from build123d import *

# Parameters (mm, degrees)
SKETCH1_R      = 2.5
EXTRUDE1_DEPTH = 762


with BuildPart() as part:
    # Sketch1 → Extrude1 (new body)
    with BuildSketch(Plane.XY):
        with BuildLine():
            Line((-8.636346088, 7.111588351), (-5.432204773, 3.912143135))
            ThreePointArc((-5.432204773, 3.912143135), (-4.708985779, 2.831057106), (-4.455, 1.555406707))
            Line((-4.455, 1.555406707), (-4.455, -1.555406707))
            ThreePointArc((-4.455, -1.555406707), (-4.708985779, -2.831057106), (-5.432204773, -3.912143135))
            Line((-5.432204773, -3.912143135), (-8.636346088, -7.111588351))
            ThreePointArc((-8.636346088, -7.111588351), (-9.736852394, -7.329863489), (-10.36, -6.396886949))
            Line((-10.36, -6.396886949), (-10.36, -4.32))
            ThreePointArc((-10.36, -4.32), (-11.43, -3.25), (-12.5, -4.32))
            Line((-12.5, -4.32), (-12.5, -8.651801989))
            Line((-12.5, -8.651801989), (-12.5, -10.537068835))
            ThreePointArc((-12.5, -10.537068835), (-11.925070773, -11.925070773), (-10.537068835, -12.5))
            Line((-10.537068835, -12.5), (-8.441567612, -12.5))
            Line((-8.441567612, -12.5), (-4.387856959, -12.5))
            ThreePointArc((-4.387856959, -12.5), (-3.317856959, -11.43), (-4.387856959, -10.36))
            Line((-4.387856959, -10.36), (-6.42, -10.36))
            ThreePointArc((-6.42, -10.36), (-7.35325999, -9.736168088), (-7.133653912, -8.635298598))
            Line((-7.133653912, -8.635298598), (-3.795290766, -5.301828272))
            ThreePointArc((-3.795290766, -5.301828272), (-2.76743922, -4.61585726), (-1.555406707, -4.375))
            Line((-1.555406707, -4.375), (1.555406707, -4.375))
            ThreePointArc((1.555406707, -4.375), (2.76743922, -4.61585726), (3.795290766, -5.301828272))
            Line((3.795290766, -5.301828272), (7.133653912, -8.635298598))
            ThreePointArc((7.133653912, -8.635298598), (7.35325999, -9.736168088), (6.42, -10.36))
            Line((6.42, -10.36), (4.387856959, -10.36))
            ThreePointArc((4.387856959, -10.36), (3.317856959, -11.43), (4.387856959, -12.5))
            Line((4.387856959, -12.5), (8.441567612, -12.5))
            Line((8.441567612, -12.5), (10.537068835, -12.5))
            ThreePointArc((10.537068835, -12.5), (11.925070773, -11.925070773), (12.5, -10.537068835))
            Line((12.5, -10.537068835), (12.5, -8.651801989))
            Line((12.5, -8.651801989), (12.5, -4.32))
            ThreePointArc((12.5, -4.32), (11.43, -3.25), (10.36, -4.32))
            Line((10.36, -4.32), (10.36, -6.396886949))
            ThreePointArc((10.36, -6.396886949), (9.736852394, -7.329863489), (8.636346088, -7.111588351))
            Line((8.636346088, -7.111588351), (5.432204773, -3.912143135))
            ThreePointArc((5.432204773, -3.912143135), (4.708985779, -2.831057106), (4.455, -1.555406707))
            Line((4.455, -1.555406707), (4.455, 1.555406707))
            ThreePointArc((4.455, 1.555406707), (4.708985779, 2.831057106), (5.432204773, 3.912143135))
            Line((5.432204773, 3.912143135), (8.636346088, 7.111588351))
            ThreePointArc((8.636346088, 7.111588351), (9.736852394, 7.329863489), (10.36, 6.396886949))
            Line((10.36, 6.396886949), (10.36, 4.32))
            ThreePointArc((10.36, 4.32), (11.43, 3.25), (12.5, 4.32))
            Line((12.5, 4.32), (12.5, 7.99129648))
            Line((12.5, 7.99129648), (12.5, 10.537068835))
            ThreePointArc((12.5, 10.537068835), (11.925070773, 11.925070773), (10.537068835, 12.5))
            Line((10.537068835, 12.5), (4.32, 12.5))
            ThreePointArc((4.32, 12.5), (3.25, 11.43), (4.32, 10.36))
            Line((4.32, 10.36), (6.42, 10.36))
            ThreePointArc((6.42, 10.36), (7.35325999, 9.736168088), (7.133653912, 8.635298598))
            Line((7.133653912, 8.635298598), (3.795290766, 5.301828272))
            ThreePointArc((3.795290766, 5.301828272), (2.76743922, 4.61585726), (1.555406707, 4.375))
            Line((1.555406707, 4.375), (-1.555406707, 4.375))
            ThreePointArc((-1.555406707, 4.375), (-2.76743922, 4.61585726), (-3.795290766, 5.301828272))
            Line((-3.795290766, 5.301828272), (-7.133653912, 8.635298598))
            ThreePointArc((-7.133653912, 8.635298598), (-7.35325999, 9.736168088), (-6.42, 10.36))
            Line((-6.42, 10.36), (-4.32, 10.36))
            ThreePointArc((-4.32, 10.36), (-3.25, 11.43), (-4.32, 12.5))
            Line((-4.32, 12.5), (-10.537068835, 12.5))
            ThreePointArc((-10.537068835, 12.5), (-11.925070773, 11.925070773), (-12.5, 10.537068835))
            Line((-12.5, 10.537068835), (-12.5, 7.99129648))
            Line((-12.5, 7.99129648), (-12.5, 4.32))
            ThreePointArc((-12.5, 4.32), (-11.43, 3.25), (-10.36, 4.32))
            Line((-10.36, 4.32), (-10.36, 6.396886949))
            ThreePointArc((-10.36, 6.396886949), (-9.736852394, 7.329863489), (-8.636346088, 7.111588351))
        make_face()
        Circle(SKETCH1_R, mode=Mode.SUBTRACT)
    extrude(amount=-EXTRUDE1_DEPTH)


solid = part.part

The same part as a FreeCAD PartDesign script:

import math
import FreeCAD as App
import Part
import Sketcher
from FreeCAD import Vector
Q = App.Units.Quantity

doc = App.newDocument("Part")
params = doc.addObject("Spreadsheet::Sheet", "Params")
for row, (alias, value) in enumerate([
    ("sketch1_diameter", "5 mm"),
    ("sketch1_radius", "1.01 mm"),
    ("sketch1_radius2", "1.07 mm"),
    ("sketch1_radius3", "3.17 mm"),
    ("sketch1_width", "2.1 mm"),
    ("pad1_length", "762 mm"),
], start=1):
    params.set(f"A{row}", alias)
    params.set(f"B{row}", "=" + value)
    params.setAlias(f"B{row}", alias)

body = doc.addObject("PartDesign::Body", "Body")

# Sketch on XY plane
sketch1 = body.newObject("Sketcher::SketchObject", "Sketch")
sketch1.AttachmentSupport = (doc.getObject("XY_Plane"), [""])
sketch1.MapMode = "FlatFace"
sketch1.addGeometry([
    Part.LineSegment(Vector(-8.6, 7.1, 0), Vector(-5.4, 3.9, 0)),  # 0
    Part.ArcOfCircle(Part.Circle(Vector(-7.8, 1.6, 0), Vector(0, 0, 1), 3.3), math.radians(0), math.radians(45)),  # 1
    Part.LineSegment(Vector(-4.5, 1.6, 0), Vector(-4.5, -1.6, 0)),  # 2
    Part.ArcOfCircle(Part.Circle(Vector(-7.8, -1.6, 0), Vector(0, 0, 1), 3.3), math.radians(-45), math.radians(0)),  # 3
    Part.LineSegment(Vector(-5.4, -3.9, 0), Vector(-8.6, -7.1, 0)),  # 4
    Part.ArcOfCircle(Part.Circle(Vector(-9.3, -6.4, 0), Vector(0, 0, 1), 1), math.radians(-180), math.radians(-45)),  # 5
    Part.LineSegment(Vector(-10.4, -6.4, 0), Vector(-10.4, -4.3, 0)),  # 6
    Part.ArcOfCircle(Part.Circle(Vector(-11.4, -4.3, 0), Vector(0, 0, 1), 1.1), math.radians(0), math.radians(180)),  # 7
    Part.LineSegment(Vector(-12.5, -4.3, 0), Vector(-12.5, -10.5, 0)),  # 8
    Part.ArcOfCircle(Part.Circle(Vector(-10.5, -10.5, 0), Vector(0, 0, 1), 2), math.radians(180), math.radians(270)),  # 9
    Part.LineSegment(Vector(-10.5, -12.5, 0), Vector(-4.4, -12.5, 0)),  # 10
    Part.ArcOfCircle(Part.Circle(Vector(-4.4, -11.4, 0), Vector(0, 0, 1), 1.1), math.radians(-90), math.radians(90)),  # 11
    Part.LineSegment(Vector(-4.4, -10.4, 0), Vector(-6.4, -10.4, 0)),  # 12
    Part.ArcOfCircle(Part.Circle(Vector(-6.4, -9.3, 0), Vector(0, 0, 1), 1), math.radians(135), math.radians(270)),  # 13
    Part.LineSegment(Vector(-7.1, -8.6, 0), Vector(-3.8, -5.3, 0)),  # 14
    Part.ArcOfCircle(Part.Circle(Vector(-1.6, -7.5, 0), Vector(0, 0, 1), 3.2), math.radians(90), math.radians(135)),  # 15
    Part.LineSegment(Vector(-1.6, -4.4, 0), Vector(1.6, -4.4, 0)),  # 16
    Part.ArcOfCircle(Part.Circle(Vector(1.6, -7.5, 0), Vector(0, 0, 1), 3.2), math.radians(45), math.radians(90)),  # 17
    Part.LineSegment(Vector(3.8, -5.3, 0), Vector(7.1, -8.6, 0)),  # 18
    Part.ArcOfCircle(Part.Circle(Vector(6.4, -9.3, 0), Vector(0, 0, 1), 1), math.radians(-90), math.radians(45)),  # 19
    Part.LineSegment(Vector(6.4, -10.4, 0), Vector(4.4, -10.4, 0)),  # 20
    Part.ArcOfCircle(Part.Circle(Vector(4.4, -11.4, 0), Vector(0, 0, 1), 1.1), math.radians(90), math.radians(270)),  # 21
    Part.LineSegment(Vector(4.4, -12.5, 0), Vector(10.5, -12.5, 0)),  # 22
    Part.ArcOfCircle(Part.Circle(Vector(10.5, -10.5, 0), Vector(0, 0, 1), 2), math.radians(-90), math.radians(0)),  # 23
    Part.LineSegment(Vector(12.5, -10.5, 0), Vector(12.5, -4.3, 0)),  # 24
    Part.ArcOfCircle(Part.Circle(Vector(11.4, -4.3, 0), Vector(0, 0, 1), 1.1), math.radians(0), math.radians(180)),  # 25
    Part.LineSegment(Vector(10.4, -4.3, 0), Vector(10.4, -6.4, 0)),  # 26
    Part.ArcOfCircle(Part.Circle(Vector(9.3, -6.4, 0), Vector(0, 0, 1), 1), math.radians(-135), math.radians(0)),  # 27
    Part.LineSegment(Vector(8.6, -7.1, 0), Vector(5.4, -3.9, 0)),  # 28
    Part.ArcOfCircle(Part.Circle(Vector(7.8, -1.6, 0), Vector(0, 0, 1), 3.3), math.radians(180), math.radians(225)),  # 29
    Part.LineSegment(Vector(4.5, -1.6, 0), Vector(4.5, 1.6, 0)),  # 30
    Part.ArcOfCircle(Part.Circle(Vector(7.8, 1.6, 0), Vector(0, 0, 1), 3.3), math.radians(135), math.radians(180)),  # 31
    Part.LineSegment(Vector(5.4, 3.9, 0), Vector(8.6, 7.1, 0)),  # 32
    Part.ArcOfCircle(Part.Circle(Vector(9.3, 6.4, 0), Vector(0, 0, 1), 1), math.radians(0), math.radians(135)),  # 33
    Part.LineSegment(Vector(10.4, 6.4, 0), Vector(10.4, 4.3, 0)),  # 34
    Part.ArcOfCircle(Part.Circle(Vector(11.4, 4.3, 0), Vector(0, 0, 1), 1.1), math.radians(180), math.radians(360)),  # 35
    Part.LineSegment(Vector(12.5, 4.3, 0), Vector(12.5, 10.5, 0)),  # 36
    Part.ArcOfCircle(Part.Circle(Vector(10.5, 10.5, 0), Vector(0, 0, 1), 2), math.radians(0), math.radians(90)),  # 37
    Part.LineSegment(Vector(10.5, 12.5, 0), Vector(4.3, 12.5, 0)),  # 38
    Part.ArcOfCircle(Part.Circle(Vector(4.3, 11.4, 0), Vector(0, 0, 1), 1.1), math.radians(90), math.radians(270)),  # 39
    Part.LineSegment(Vector(4.3, 10.4, 0), Vector(6.4, 10.4, 0)),  # 40
    Part.ArcOfCircle(Part.Circle(Vector(6.4, 9.3, 0), Vector(0, 0, 1), 1), math.radians(-45), math.radians(90)),  # 41
    Part.LineSegment(Vector(7.1, 8.6, 0), Vector(3.8, 5.3, 0)),  # 42
    Part.ArcOfCircle(Part.Circle(Vector(1.6, 7.5, 0), Vector(0, 0, 1), 3.2), math.radians(-90), math.radians(-45)),  # 43
    Part.LineSegment(Vector(1.6, 4.4, 0), Vector(-1.6, 4.4, 0)),  # 44
    Part.ArcOfCircle(Part.Circle(Vector(-1.6, 7.5, 0), Vector(0, 0, 1), 3.2), math.radians(-135), math.radians(-90)),  # 45
    Part.LineSegment(Vector(-3.8, 5.3, 0), Vector(-7.1, 8.6, 0)),  # 46
    Part.ArcOfCircle(Part.Circle(Vector(-6.4, 9.3, 0), Vector(0, 0, 1), 1), math.radians(90), math.radians(225)),  # 47
    Part.LineSegment(Vector(-6.4, 10.4, 0), Vector(-4.3, 10.4, 0)),  # 48
    Part.ArcOfCircle(Part.Circle(Vector(-4.3, 11.4, 0), Vector(0, 0, 1), 1.1), math.radians(-90), math.radians(90)),  # 49
    Part.LineSegment(Vector(-4.3, 12.5, 0), Vector(-10.5, 12.5, 0)),  # 50
    Part.ArcOfCircle(Part.Circle(Vector(-10.5, 10.5, 0), Vector(0, 0, 1), 2), math.radians(90), math.radians(180)),  # 51
    Part.LineSegment(Vector(-12.5, 10.5, 0), Vector(-12.5, 4.3, 0)),  # 52
    Part.ArcOfCircle(Part.Circle(Vector(-11.4, 4.3, 0), Vector(0, 0, 1), 1.1), math.radians(180), math.radians(360)),  # 53
    Part.LineSegment(Vector(-10.4, 4.3, 0), Vector(-10.4, 6.4, 0)),  # 54
    Part.ArcOfCircle(Part.Circle(Vector(-9.3, 6.4, 0), Vector(0, 0, 1), 1), math.radians(45), math.radians(180)),  # 55
    Part.Circle(Vector(0, 0, 0), Vector(0, 0, 1), 2.5),  # 56
], False)
sketch1.addConstraint([
    Sketcher.Constraint("Tangent", 0, 2, 1, 2),
    Sketcher.Constraint("Tangent", 1, 1, 2, 1),
    Sketcher.Constraint("Tangent", 2, 2, 3, 2),
    Sketcher.Constraint("Tangent", 3, 1, 4, 1),
    Sketcher.Constraint("Tangent", 4, 2, 5, 2),
    Sketcher.Constraint("Tangent", 5, 1, 6, 1),
    Sketcher.Constraint("Tangent", 6, 2, 7, 1),
    Sketcher.Constraint("Tangent", 7, 2, 8, 1),
    Sketcher.Constraint("Tangent", 8, 2, 9, 1),
    Sketcher.Constraint("Tangent", 9, 2, 10, 1),
    Sketcher.Constraint("Tangent", 10, 2, 11, 1),
    Sketcher.Constraint("Tangent", 11, 2, 12, 1),
    Sketcher.Constraint("Tangent", 12, 2, 13, 2),
    Sketcher.Constraint("Tangent", 13, 1, 14, 1),
    Sketcher.Constraint("Tangent", 14, 2, 15, 2),
    Sketcher.Constraint("Tangent", 15, 1, 16, 1),
    Sketcher.Constraint("Tangent", 16, 2, 17, 2),
    Sketcher.Constraint("Tangent", 17, 1, 18, 1),
    Sketcher.Constraint("Tangent", 18, 2, 19, 2),
    Sketcher.Constraint("Tangent", 19, 1, 20, 1),
    Sketcher.Constraint("Tangent", 20, 2, 21, 1),
    Sketcher.Constraint("Tangent", 21, 2, 22, 1),
    Sketcher.Constraint("Tangent", 22, 2, 23, 1),
    Sketcher.Constraint("Tangent", 23, 2, 24, 1),
    Sketcher.Constraint("Tangent", 24, 2, 25, 1),
    Sketcher.Constraint("Tangent", 25, 2, 26, 1),
    Sketcher.Constraint("Tangent", 26, 2, 27, 2),
    Sketcher.Constraint("Tangent", 27, 1, 28, 1),
    Sketcher.Constraint("Tangent", 28, 2, 29, 2),
    Sketcher.Constraint("Tangent", 29, 1, 30, 1),
    Sketcher.Constraint("Tangent", 30, 2, 31, 2),
    Sketcher.Constraint("Tangent", 31, 1, 32, 1),
    Sketcher.Constraint("Tangent", 32, 2, 33, 2),
    Sketcher.Constraint("Tangent", 33, 1, 34, 1),
    Sketcher.Constraint("Tangent", 34, 2, 35, 1),
    Sketcher.Constraint("Tangent", 35, 2, 36, 1),
    Sketcher.Constraint("Tangent", 36, 2, 37, 1),
    Sketcher.Constraint("Tangent", 37, 2, 38, 1),
    Sketcher.Constraint("Tangent", 38, 2, 39, 1),
    Sketcher.Constraint("Tangent", 39, 2, 40, 1),
    Sketcher.Constraint("Tangent", 40, 2, 41, 2),
    Sketcher.Constraint("Tangent", 41, 1, 42, 1),
    Sketcher.Constraint("Tangent", 42, 2, 43, 2),
    Sketcher.Constraint("Tangent", 43, 1, 44, 1),
    Sketcher.Constraint("Tangent", 44, 2, 45, 2),
    Sketcher.Constraint("Tangent", 45, 1, 46, 1),
    Sketcher.Constraint("Tangent", 46, 2, 47, 2),
    Sketcher.Constraint("Tangent", 47, 1, 48, 1),
    Sketcher.Constraint("Tangent", 48, 2, 49, 1),
    Sketcher.Constraint("Tangent", 49, 2, 50, 1),
    Sketcher.Constraint("Tangent", 50, 2, 51, 1),
    Sketcher.Constraint("Tangent", 51, 2, 52, 1),
    Sketcher.Constraint("Tangent", 52, 2, 53, 1),
    Sketcher.Constraint("Tangent", 53, 2, 54, 1),
    Sketcher.Constraint("Tangent", 54, 2, 55, 2),
    Sketcher.Constraint("Tangent", 55, 1, 0, 1),
    Sketcher.Constraint("Vertical", 2),
    Sketcher.Constraint("Vertical", 6),
    Sketcher.Constraint("Vertical", 8),
    Sketcher.Constraint("Horizontal", 10),
    Sketcher.Constraint("Horizontal", 12),
    Sketcher.Constraint("Horizontal", 16),
    Sketcher.Constraint("Horizontal", 20),
    Sketcher.Constraint("Horizontal", 22),
    Sketcher.Constraint("Vertical", 24),
    Sketcher.Constraint("Vertical", 26),
    Sketcher.Constraint("Vertical", 30),
    Sketcher.Constraint("Vertical", 34),
    Sketcher.Constraint("Vertical", 36),
    Sketcher.Constraint("Horizontal", 38),
    Sketcher.Constraint("Horizontal", 40),
    Sketcher.Constraint("Horizontal", 44),
    Sketcher.Constraint("Horizontal", 48),
    Sketcher.Constraint("Horizontal", 50),
    Sketcher.Constraint("Vertical", 52),
    Sketcher.Constraint("Vertical", 54),
    Sketcher.Constraint("Coincident", 56, 3, -1, 1),
    Sketcher.Constraint("Equal", 1, 3),
    Sketcher.Constraint("Equal", 7, 11),
    Sketcher.Constraint("Equal", 5, 13),
    Sketcher.Constraint("Equal", 15, 17),
    Sketcher.Constraint("Equal", 13, 19),
    Sketcher.Constraint("Equal", 11, 21),
    Sketcher.Constraint("Equal", 9, 23),
    Sketcher.Constraint("Equal", 21, 25),
    Sketcher.Constraint("Equal", 19, 27),
    Sketcher.Constraint("Equal", 3, 29),
    Sketcher.Constraint("Equal", 29, 31),
    Sketcher.Constraint("Equal", 27, 33),
    Sketcher.Constraint("Equal", 25, 35),
    Sketcher.Constraint("Equal", 23, 37),
    Sketcher.Constraint("Equal", 35, 39),
    Sketcher.Constraint("Equal", 33, 41),
    Sketcher.Constraint("Equal", 17, 43),
    Sketcher.Constraint("Equal", 43, 45),
    Sketcher.Constraint("Equal", 41, 47),
    Sketcher.Constraint("Equal", 39, 49),
    Sketcher.Constraint("Equal", 37, 51),
    Sketcher.Constraint("Equal", 49, 53),
    Sketcher.Constraint("Equal", 47, 55),
    Sketcher.Constraint("Symmetric", 1, 3, 29, 3, -1, 1),
    Sketcher.Constraint("Symmetric", 5, 3, 33, 3, -1, 1),
    Sketcher.Constraint("Symmetric", 13, 3, 41, 3, -1, 1),
    Sketcher.Constraint("Symmetric", 15, 3, 43, 3, -1, 1),
    Sketcher.Constraint("Symmetric", 19, 3, 47, 3, -1, 1),
    Sketcher.Constraint("Symmetric", 25, 3, 53, 3, -1, 1),
    Sketcher.Constraint("Symmetric", 13, 3, 19, 3, -2),
    Sketcher.Constraint("Symmetric", 7, 3, 25, 3, -2),
    Sketcher.Constraint("Symmetric", 4, 2, 27, 1, -2),
    Sketcher.Constraint("Symmetric", 0, 2, 31, 1, -2),
    Sketcher.Constraint("Parallel", 4, 14),
    Sketcher.Constraint("Parallel", 0, 18),
    Sketcher.Constraint("Parallel", 28, 46),
    Sketcher.Constraint("Horizontal", 35, 3, 53, 3),
    Sketcher.Constraint("Equal", 12, 20),
    Sketcher.Constraint("Equal", 40, 48),
    Sketcher.Constraint("Equal", 44, 2),
    Sketcher.Constraint("Equal", 50, 8),
    Sketcher.Constraint("Diameter", 56, Q("5 mm")),
    Sketcher.Constraint("Radius", 5, Q("1.01 mm")),
    Sketcher.Constraint("Radius", 7, Q("1.07 mm")),
    Sketcher.Constraint("Radius", 15, Q("3.17 mm")),
    Sketcher.Constraint("DistanceX", 40, 1, 40, 2, Q("2.1 mm")),
    Sketcher.Constraint("DistanceX", 7, 2, -1, 1, Q("12.5 mm")),
    Sketcher.Constraint("DistanceY", 9, 2, -1, 1, Q("12.5 mm")),
    Sketcher.Constraint("DistanceY", 7, 3, -1, 1, Q("4.32 mm")),
    Sketcher.Constraint("Radius", 9, Q("1.962931 mm")),
    Sketcher.Constraint("DistanceY", 15, 3, -1, 1, Q("7.545 mm")),
    Sketcher.Constraint("DistanceX", 1, 1, -1, 1, Q("4.455 mm")),
    Sketcher.Constraint("Radius", 1, Q("3.330487 mm")),
    Sketcher.Constraint("Distance", 14, Q("4.7177 mm")),
    Sketcher.Constraint("DistanceX", 10, 1, 10, 2, Q("6.149212 mm")),
])
sketch1.setExpression("Constraints[118]", "Params.sketch1_diameter")
sketch1.setExpression("Constraints[119]", "Params.sketch1_radius")
sketch1.setExpression("Constraints[120]", "Params.sketch1_radius2")
sketch1.setExpression("Constraints[121]", "Params.sketch1_radius3")
sketch1.setExpression("Constraints[122]", "Params.sketch1_width")
pad1 = body.newObject("PartDesign::Pad", "Pad")
pad1.Profile = sketch1
pad1.setExpression("Length", "Params.pad1_length")
pad1.Reversed = True

doc.recompute()
